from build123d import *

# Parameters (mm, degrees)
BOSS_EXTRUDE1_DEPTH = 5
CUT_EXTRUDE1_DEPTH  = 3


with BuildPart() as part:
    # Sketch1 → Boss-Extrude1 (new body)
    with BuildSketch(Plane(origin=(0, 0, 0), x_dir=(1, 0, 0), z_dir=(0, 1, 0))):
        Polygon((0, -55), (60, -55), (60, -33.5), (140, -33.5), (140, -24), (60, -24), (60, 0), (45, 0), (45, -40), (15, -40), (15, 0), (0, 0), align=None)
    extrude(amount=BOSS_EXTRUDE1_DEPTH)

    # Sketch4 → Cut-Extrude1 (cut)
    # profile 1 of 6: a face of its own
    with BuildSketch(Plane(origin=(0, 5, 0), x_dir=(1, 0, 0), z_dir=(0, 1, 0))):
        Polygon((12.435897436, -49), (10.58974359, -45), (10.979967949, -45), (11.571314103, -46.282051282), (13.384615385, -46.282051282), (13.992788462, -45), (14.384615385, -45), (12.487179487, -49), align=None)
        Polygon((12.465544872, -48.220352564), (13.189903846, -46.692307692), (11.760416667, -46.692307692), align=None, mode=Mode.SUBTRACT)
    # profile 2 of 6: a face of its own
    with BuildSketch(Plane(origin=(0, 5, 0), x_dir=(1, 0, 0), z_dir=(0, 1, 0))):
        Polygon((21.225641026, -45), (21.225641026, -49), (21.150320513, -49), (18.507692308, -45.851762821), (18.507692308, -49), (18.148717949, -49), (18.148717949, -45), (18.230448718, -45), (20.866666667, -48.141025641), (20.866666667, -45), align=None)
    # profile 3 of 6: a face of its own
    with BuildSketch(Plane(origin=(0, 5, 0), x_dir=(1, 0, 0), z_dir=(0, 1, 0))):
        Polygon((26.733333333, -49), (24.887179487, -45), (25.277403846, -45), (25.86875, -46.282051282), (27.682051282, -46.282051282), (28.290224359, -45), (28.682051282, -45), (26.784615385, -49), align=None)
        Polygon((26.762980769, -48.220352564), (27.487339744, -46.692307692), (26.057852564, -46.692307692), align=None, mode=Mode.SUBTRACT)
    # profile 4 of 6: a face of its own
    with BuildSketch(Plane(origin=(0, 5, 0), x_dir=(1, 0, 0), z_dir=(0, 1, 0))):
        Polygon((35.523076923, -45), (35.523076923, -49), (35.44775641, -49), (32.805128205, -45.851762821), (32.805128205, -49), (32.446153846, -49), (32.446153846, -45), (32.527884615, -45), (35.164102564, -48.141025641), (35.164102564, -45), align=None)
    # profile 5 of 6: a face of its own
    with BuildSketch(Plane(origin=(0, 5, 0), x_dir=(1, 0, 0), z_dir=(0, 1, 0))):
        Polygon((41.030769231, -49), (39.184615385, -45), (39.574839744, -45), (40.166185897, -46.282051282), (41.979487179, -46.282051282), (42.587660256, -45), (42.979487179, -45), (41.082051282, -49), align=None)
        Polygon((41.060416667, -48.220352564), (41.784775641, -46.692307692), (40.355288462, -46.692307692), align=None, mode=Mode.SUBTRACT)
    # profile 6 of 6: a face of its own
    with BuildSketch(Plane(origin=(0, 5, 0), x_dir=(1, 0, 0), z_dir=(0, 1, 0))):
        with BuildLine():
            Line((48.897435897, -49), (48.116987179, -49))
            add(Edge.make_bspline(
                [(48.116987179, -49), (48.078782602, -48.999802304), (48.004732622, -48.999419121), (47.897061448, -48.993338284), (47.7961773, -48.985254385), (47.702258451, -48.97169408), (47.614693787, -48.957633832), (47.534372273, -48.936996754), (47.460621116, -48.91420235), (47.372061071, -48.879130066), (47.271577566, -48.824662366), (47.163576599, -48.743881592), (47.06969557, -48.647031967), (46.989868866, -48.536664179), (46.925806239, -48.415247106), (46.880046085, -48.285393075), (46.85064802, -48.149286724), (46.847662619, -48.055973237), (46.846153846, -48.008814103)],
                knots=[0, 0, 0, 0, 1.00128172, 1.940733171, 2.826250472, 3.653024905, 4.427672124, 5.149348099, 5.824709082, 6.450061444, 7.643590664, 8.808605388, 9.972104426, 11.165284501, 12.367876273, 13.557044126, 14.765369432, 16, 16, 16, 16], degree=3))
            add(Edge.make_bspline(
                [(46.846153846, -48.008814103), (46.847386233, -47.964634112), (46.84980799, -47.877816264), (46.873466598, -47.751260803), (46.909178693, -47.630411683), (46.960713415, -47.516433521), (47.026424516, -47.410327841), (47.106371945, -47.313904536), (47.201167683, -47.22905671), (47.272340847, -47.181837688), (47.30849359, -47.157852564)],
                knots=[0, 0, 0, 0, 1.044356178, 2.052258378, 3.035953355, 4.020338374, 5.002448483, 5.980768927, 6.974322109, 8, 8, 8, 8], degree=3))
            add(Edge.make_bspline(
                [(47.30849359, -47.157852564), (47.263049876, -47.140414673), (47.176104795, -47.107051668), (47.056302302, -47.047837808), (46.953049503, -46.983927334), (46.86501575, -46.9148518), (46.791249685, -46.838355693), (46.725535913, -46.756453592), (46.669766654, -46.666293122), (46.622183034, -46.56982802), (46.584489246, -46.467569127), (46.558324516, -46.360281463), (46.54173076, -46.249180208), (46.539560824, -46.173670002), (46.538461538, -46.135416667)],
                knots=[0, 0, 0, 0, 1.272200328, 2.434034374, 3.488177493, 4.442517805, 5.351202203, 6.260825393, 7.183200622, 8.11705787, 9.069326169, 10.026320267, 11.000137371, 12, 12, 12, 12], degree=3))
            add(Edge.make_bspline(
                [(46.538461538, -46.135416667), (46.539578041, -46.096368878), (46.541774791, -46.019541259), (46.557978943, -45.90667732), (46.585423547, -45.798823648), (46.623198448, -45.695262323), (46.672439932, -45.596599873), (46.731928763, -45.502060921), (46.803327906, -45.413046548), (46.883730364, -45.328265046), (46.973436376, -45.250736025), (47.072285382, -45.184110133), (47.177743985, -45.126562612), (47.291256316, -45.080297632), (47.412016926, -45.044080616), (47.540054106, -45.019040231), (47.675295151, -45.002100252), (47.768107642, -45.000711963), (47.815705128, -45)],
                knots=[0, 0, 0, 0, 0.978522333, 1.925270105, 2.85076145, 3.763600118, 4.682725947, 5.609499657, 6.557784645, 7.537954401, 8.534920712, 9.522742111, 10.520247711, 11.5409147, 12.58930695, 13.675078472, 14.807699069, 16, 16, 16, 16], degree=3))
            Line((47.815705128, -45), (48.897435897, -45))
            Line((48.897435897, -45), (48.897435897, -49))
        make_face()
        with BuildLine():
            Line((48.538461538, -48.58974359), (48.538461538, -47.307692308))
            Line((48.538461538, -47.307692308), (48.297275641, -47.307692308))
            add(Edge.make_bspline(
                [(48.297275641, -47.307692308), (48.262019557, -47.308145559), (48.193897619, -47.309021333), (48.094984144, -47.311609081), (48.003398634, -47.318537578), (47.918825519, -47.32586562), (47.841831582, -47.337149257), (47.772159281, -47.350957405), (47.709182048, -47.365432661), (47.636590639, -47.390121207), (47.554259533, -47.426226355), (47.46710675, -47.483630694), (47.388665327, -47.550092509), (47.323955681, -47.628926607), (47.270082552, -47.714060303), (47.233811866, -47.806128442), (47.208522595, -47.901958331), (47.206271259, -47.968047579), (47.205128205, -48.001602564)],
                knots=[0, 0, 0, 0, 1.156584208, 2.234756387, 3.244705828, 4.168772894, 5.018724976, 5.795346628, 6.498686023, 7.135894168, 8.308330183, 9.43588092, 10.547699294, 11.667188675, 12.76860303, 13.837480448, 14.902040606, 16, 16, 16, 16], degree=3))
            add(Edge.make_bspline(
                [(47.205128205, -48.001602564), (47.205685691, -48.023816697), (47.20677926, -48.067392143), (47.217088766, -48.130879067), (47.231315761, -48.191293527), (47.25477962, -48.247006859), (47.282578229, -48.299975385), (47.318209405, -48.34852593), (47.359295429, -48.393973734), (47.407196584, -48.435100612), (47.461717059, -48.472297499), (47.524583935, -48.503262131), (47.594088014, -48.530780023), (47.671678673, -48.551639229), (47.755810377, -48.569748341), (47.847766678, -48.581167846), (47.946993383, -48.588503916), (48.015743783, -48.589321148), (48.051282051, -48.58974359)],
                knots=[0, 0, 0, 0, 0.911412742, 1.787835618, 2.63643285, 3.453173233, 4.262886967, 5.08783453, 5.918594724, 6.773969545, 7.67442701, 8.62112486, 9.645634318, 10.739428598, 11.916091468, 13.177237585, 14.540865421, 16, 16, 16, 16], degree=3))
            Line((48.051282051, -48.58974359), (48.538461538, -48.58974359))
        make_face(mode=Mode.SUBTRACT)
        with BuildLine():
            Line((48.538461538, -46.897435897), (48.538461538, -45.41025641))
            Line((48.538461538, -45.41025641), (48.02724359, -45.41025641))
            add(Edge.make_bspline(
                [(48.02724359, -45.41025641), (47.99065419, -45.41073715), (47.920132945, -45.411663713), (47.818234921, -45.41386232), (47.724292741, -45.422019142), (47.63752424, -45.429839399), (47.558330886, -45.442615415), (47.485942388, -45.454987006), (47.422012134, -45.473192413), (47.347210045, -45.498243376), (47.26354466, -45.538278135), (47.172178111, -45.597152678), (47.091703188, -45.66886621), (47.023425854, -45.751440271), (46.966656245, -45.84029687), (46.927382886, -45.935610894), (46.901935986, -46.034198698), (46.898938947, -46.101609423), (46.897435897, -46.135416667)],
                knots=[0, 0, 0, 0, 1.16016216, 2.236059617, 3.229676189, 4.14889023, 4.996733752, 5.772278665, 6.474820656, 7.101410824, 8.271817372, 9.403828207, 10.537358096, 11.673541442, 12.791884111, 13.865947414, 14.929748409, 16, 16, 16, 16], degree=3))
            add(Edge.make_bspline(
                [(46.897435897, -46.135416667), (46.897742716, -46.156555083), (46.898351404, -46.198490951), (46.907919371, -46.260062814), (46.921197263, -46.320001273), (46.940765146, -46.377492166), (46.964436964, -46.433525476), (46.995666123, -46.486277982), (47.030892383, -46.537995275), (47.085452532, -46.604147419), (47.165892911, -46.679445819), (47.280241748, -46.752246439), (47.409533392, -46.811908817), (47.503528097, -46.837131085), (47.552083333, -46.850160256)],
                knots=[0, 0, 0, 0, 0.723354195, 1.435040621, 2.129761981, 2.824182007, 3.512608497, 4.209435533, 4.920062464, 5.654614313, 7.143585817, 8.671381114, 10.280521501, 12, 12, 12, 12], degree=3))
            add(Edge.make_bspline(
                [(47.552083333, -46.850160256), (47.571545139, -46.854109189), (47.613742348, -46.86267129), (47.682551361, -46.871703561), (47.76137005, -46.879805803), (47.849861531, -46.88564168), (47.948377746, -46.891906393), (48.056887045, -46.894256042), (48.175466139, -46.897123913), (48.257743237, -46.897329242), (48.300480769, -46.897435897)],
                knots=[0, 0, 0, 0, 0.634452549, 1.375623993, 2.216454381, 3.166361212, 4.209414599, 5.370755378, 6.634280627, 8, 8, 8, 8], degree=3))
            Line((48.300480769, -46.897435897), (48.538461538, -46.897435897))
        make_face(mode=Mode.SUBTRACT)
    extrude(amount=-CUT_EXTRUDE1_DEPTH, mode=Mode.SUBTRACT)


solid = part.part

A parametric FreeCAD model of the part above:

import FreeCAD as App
import Part
import Sketcher
from FreeCAD import Vector


def add_polygon(sketch, points):
    """Adds a closed chain of lines whose ends are joined by coincident constraints."""
    first, n = sketch.GeometryCount, len(points)
    for a, b in zip(points, points[1:] + points[:1]):
        sketch.addGeometry(Part.LineSegment(App.Vector(*a, 0), App.Vector(*b, 0)), False)
    for i in range(n):
        sketch.addConstraint(Sketcher.Constraint("Coincident", first + i, 2, first + (i + 1) % n, 1))

doc = App.newDocument("Part")
params = doc.addObject("Spreadsheet::Sheet", "Params")
for row, (alias, value) in enumerate([
    ("sketch1_width", "60 mm"),
    ("sketch1_width2", "80 mm"),
    ("sketch1_width3", "15 mm"),
    ("sketch1_height", "24 mm"),
    ("sketch1_height2", "40 mm"),
    ("pad1_length", "5 mm"),
    ("pocket1_length", "3 mm"),
], start=1):
    params.set(f"A{row}", alias)
    params.set(f"B{row}", "=" + value)
    params.setAlias(f"B{row}", alias)

body = doc.addObject("PartDesign::Body", "Body")

# Sketch on XZ plane
sketch1 = body.newObject("Sketcher::SketchObject", "Sketch")
sketch1.AttachmentSupport = (doc.getObject("XZ_Plane"), [""])
sketch1.MapMode = "FlatFace"
add_polygon(sketch1, [(0, 55), (60, 55), (60, 34), (140, 34), (140, 24), (60, 24), (60, 0), (45, 0), (45, 40), (15, 40), (15, 0), (0, 0)])  # lines 0-11
sketch1.addConstraint([
    Sketcher.Constraint("Horizontal", 0),
    Sketcher.Constraint("Vertical", 1),
    Sketcher.Constraint("Horizontal", 2),
    Sketcher.Constraint("Vertical", 3),
    Sketcher.Constraint("Horizontal", 4),
    Sketcher.Constraint("Vertical", 5),
    Sketcher.Constraint("Horizontal", 6),
    Sketcher.Constraint("Vertical", 7),
    Sketcher.Constraint("Horizontal", 8),
    Sketcher.Constraint("Vertical", 9),
    Sketcher.Constraint("Horizontal", 10),
    Sketcher.Constraint("Vertical", 11),
    Sketcher.Constraint("Coincident", 10, 2, -1, 1),
    Sketcher.Constraint("PointOnObject", 5, 2, -1),
    Sketcher.Constraint("Vertical", 1, 2, 4, 2),
    Sketcher.Constraint("Equal", 6, 10),
    Sketcher.Constraint("DistanceX", 0, 1, 0, 2, 60.0),
    Sketcher.Constraint("DistanceX", 2, 1, 2, 2, 80.0),
    Sketcher.Constraint("DistanceX", 6, 2, 6, 1, 15.0),
    Sketcher.Constraint("DistanceY", 5, 2, 5, 1, 24.0),
    Sketcher.Constraint("DistanceY", 7, 1, 7, 2, 40.0),
    Sketcher.Constraint("DistanceY", 11, 1, 11, 2, 55.0),
    Sketcher.Constraint("DistanceY", 1, 2, 1, 1, 21.5),
])
sketch1.setExpression("Constraints[28]", "Params.sketch1_width")
sketch1.setExpression("Constraints[29]", "Params.sketch1_width2")
sketch1.setExpression("Constraints[30]", "Params.sketch1_width3")
sketch1.setExpression("Constraints[31]", "Params.sketch1_height")
sketch1.setExpression("Constraints[32]", "Params.sketch1_height2")
pad1 = body.newObject("PartDesign::Pad", "Pad")
pad1.Profile = sketch1
pad1.setExpression("Length", "Params.pad1_length")
pad1.Reversed = True

# Sketch on XZ plane
sketch2 = body.newObject("Sketcher::SketchObject", "Sketch001")
sketch2.AttachmentSupport = (doc.getObject("XZ_Plane"), [""])
sketch2.MapMode = "FlatFace"
sketch2.AttachmentOffset = App.Placement(Vector(0, 0, -5), App.Rotation())
add_polygon(sketch2, [(10.589744, 45), (12.435897, 49), (12.487179, 49), (14.384615, 45), (13.992788, 45), (13.384615, 46.282051), (11.571314, 46.282051), (10.979968, 45)])  # lines 0-7
add_polygon(sketch2, [(12.465545, 48.220353), (11.760417, 46.692308), (13.189904, 46.692308)])  # lines 8-10
add_polygon(sketch2, [(21.225641, 49), (21.225641, 45), (20.866667, 45), (20.866667, 48.141026), (18.230449, 45), (18.148718, 45), (18.148718, 49), (18.507692, 49), (18.507692, 45.851763), (21.150321, 49)])  # lines 11-20
add_polygon(sketch2, [(24.887179, 45), (26.733333, 49), (26.784615, 49), (28.682051, 45), (28.290224, 45), (27.682051, 46.282051), (25.86875, 46.282051), (25.277404, 45)])  # lines 21-28
add_polygon(sketch2, [(26.762981, 48.220353), (26.057853, 46.692308), (27.48734, 46.692308)])  # lines 29-31
add_polygon(sketch2, [(35.523077, 49), (35.523077, 45), (35.164103, 45), (35.164103, 48.141026), (32.527885, 45), (32.446154, 45), (32.446154, 49), (32.805128, 49), (32.805128, 45.851763), (35.447756, 49)])  # lines 32-41
add_polygon(sketch2, [(39.184615, 45), (41.030769, 49), (41.082051, 49), (42.979487, 45), (42.58766, 45), (41.979487, 46.282051), (40.166186, 46.282051), (39.57484, 45)])  # lines 42-49
add_polygon(sketch2, [(41.060417, 48.220353), (40.355288, 46.692308), (41.784776, 46.692308)])  # lines 50-52
sketch2.addGeometry(Part.LineSegment(Vector(48.116987, 49, 0), Vector(48.897436, 49, 0)), False)  # 53
sketch2.addGeometry(Part.LineSegment(Vector(48.897436, 49, 0), Vector(48.897436, 45, 0)), False)  # 54
sketch2.addGeometry(Part.LineSegment(Vector(48.897436, 45, 0), Vector(47.815705, 45, 0)), False)  # 55
sketch2.addGeometry(Part.BSplineCurve([Vector(46.538462, 46.135417, 0), Vector(46.539578, 46.096369, 0), Vector(46.541775, 46.019541, 0), Vector(46.557979, 45.906677, 0), Vector(46.585424, 45.798824, 0), Vector(46.623198, 45.695262, 0), Vector(46.67244, 45.5966, 0), Vector(46.731929, 45.502061, 0), Vector(46.803328, 45.413047, 0), Vector(46.88373, 45.328265, 0), Vector(46.973436, 45.250736, 0), Vector(47.072285, 45.18411, 0), Vector(47.177744, 45.126563, 0), Vector(47.291256, 45.080298, 0), Vector(47.412017, 45.044081, 0), Vector(47.540054, 45.01904, 0), Vector(47.675295, 45.0021, 0), Vector(47.768108, 45.000712, 0), Vector(47.815705, 45, 0)], [4, 1, 1, 1, 1, 1, 1, 1, 1, 1, 1, 1, 1, 1, 1, 1, 4], [0, 0.978522333, 1.925270105, 2.85076145, 3.763600118, 4.682725947, 5.609499657, 6.557784645, 7.537954401, 8.534920712, 9.522742111, 10.520247711, 11.5409147, 12.58930695, 13.675078472, 14.807699069, 16], False, 3, [1, 1, 1, 1, 1, 1, 1, 1, 1, 1, 1, 1, 1, 1, 1, 1, 1, 1, 1], False), False)  # 56
sketch2.addGeometry(Part.BSplineCurve([Vector(47.308494, 47.157853, 0), Vector(47.26305, 47.140415, 0), Vector(47.176105, 47.107052, 0), Vector(47.056302, 47.047838, 0), Vector(46.95305, 46.983927, 0), Vector(46.865016, 46.914852, 0), Vector(46.79125, 46.838356, 0), Vector(46.725536, 46.756454, 0), Vector(46.669767, 46.666293, 0), Vector(46.622183, 46.569828, 0), Vector(46.584489, 46.467569, 0), Vector(46.558325, 46.360281, 0), Vector(46.541731, 46.24918, 0), Vector(46.539561, 46.17367, 0), Vector(46.538462, 46.135417, 0)], [4, 1, 1, 1, 1, 1, 1, 1, 1, 1, 1, 1, 4], [0, 1.272200328, 2.434034374, 3.488177493, 4.442517805, 5.351202203, 6.260825393, 7.183200622, 8.11705787, 9.069326169, 10.026320267, 11.000137371, 12], False, 3, [1, 1, 1, 1, 1, 1, 1, 1, 1, 1, 1, 1, 1, 1, 1], False), False)  # 57
sketch2.addGeometry(Part.BSplineCurve([Vector(46.846154, 48.008814, 0), Vector(46.847386, 47.964634, 0), Vector(46.849808, 47.877816, 0), Vector(46.873467, 47.751261, 0), Vector(46.909179, 47.630412, 0), Vector(46.960713, 47.516434, 0), Vector(47.026425, 47.410328, 0), Vector(47.106372, 47.313905, 0), Vector(47.201168, 47.229057, 0), Vector(47.272341, 47.181838, 0), Vector(47.308494, 47.157853, 0)], [4, 1, 1, 1, 1, 1, 1, 1, 4], [0, 1.044356178, 2.052258378, 3.035953355, 4.020338374, 5.002448483, 5.980768927, 6.974322109, 8], False, 3, [1, 1, 1, 1, 1, 1, 1, 1, 1, 1, 1], False), False)  # 58
sketch2.addGeometry(Part.BSplineCurve([Vector(48.116987, 49, 0), Vector(48.078783, 48.999802, 0), Vector(48.004733, 48.999419, 0), Vector(47.897061, 48.993338, 0), Vector(47.796177, 48.985254, 0), Vector(47.702258, 48.971694, 0), Vector(47.614694, 48.957634, 0), Vector(47.534372, 48.936997, 0), Vector(47.460621, 48.914202, 0), Vector(47.372061, 48.87913, 0), Vector(47.271578, 48.824662, 0), Vector(47.163577, 48.743882, 0), Vector(47.069696, 48.647032, 0), Vector(46.989869, 48.536664, 0), Vector(46.925806, 48.415247, 0), Vector(46.880046, 48.285393, 0), Vector(46.850648, 48.149287, 0), Vector(46.847663, 48.055973, 0), Vector(46.846154, 48.008814, 0)], [4, 1, 1, 1, 1, 1, 1, 1, 1, 1, 1, 1, 1, 1, 1, 1, 4], [0, 1.00128172, 1.940733171, 2.826250472, 3.653024905, 4.427672124, 5.149348099, 5.824709082, 6.450061444, 7.643590664, 8.808605388, 9.972104426, 11.165284501, 12.367876273, 13.557044126, 14.765369432, 16], False, 3, [1, 1, 1, 1, 1, 1, 1, 1, 1, 1, 1, 1, 1, 1, 1, 1, 1, 1, 1], False), False)  # 59
sketch2.addGeometry(Part.LineSegment(Vector(48.538462, 48.589744, 0), Vector(48.051282, 48.589744, 0)), False)  # 60
sketch2.addGeometry(Part.BSplineCurve([Vector(47.205128, 48.001603, 0), Vector(47.205686, 48.023817, 0), Vector(47.206779, 48.067392, 0), Vector(47.217089, 48.130879, 0), Vector(47.231316, 48.191294, 0), Vector(47.25478, 48.247007, 0), Vector(47.282578, 48.299975, 0), Vector(47.318209, 48.348526, 0), Vector(47.359295, 48.393974, 0), Vector(47.407197, 48.435101, 0), Vector(47.461717, 48.472297, 0), Vector(47.524584, 48.503262, 0), Vector(47.594088, 48.53078, 0), Vector(47.671679, 48.551639, 0), Vector(47.75581, 48.569748, 0), Vector(47.847767, 48.581168, 0), Vector(47.946993, 48.588504, 0), Vector(48.015744, 48.589321, 0), Vector(48.051282, 48.589744, 0)], [4, 1, 1, 1, 1, 1, 1, 1, 1, 1, 1, 1, 1, 1, 1, 1, 4], [0, 0.911412742, 1.787835618, 2.63643285, 3.453173233, 4.262886967, 5.08783453, 5.918594724, 6.773969545, 7.67442701, 8.62112486, 9.645634318, 10.739428598, 11.916091468, 13.177237585, 14.540865421, 16], False, 3, [1, 1, 1, 1, 1, 1, 1, 1, 1, 1, 1, 1, 1, 1, 1, 1, 1, 1, 1], False), False)  # 61
sketch2.addGeometry(Part.BSplineCurve([Vector(48.297276, 47.307692, 0), Vector(48.26202, 47.308146, 0), Vector(48.193898, 47.309021, 0), Vector(48.094984, 47.311609, 0), Vector(48.003399, 47.318538, 0), Vector(47.918826, 47.325866, 0), Vector(47.841832, 47.337149, 0), Vector(47.772159, 47.350957, 0), Vector(47.709182, 47.365433, 0), Vector(47.636591, 47.390121, 0), Vector(47.55426, 47.426226, 0), Vector(47.467107, 47.483631, 0), Vector(47.388665, 47.550093, 0), Vector(47.323956, 47.628927, 0), Vector(47.270083, 47.71406, 0), Vector(47.233812, 47.806128, 0), Vector(47.208523, 47.901958, 0), Vector(47.206271, 47.968048, 0), Vector(47.205128, 48.001603, 0)], [4, 1, 1, 1, 1, 1, 1, 1, 1, 1, 1, 1, 1, 1, 1, 1, 4], [0, 1.156584208, 2.234756387, 3.244705828, 4.168772894, 5.018724976, 5.795346628, 6.498686023, 7.135894168, 8.308330183, 9.43588092, 10.547699294, 11.667188675, 12.76860303, 13.837480448, 14.902040606, 16], False, 3, [1, 1, 1, 1, 1, 1, 1, 1, 1, 1, 1, 1, 1, 1, 1, 1, 1, 1, 1], False), False)  # 62
sketch2.addGeometry(Part.LineSegment(Vector(48.297276, 47.307692, 0), Vector(48.538462, 47.307692, 0)), False)  # 63
sketch2.addGeometry(Part.LineSegment(Vector(48.538462, 47.307692, 0), Vector(48.538462, 48.589744, 0)), False)  # 64
sketch2.addGeometry(Part.LineSegment(Vector(48.538462, 46.897436, 0), Vector(48.300481, 46.897436, 0)), False)  # 65
sketch2.addGeometry(Part.BSplineCurve([Vector(47.552083, 46.85016, 0), Vector(47.571545, 46.854109, 0), Vector(47.613742, 46.862671, 0), Vector(47.682551, 46.871704, 0), Vector(47.76137, 46.879806, 0), Vector(47.849862, 46.885642, 0), Vector(47.948378, 46.891906, 0), Vector(48.056887, 46.894256, 0), Vector(48.175466, 46.897124, 0), Vector(48.257743, 46.897329, 0), Vector(48.300481, 46.897436, 0)], [4, 1, 1, 1, 1, 1, 1, 1, 4], [0, 0.634452549, 1.375623993, 2.216454381, 3.166361212, 4.209414599, 5.370755378, 6.634280627, 8], False, 3, [1, 1, 1, 1, 1, 1, 1, 1, 1, 1, 1], False), False)  # 66
sketch2.addGeometry(Part.BSplineCurve([Vector(46.897436, 46.135417, 0), Vector(46.897743, 46.156555, 0), Vector(46.898351, 46.198491, 0), Vector(46.907919, 46.260063, 0), Vector(46.921197, 46.320001, 0), Vector(46.940765, 46.377492, 0), Vector(46.964437, 46.433525, 0), Vector(46.995666, 46.486278, 0), Vector(47.030892, 46.537995, 0), Vector(47.085453, 46.604147, 0), Vector(47.165893, 46.679446, 0), Vector(47.280242, 46.752246, 0), Vector(47.409533, 46.811909, 0), Vector(47.503528, 46.837131, 0), Vector(47.552083, 46.85016, 0)], [4, 1, 1, 1, 1, 1, 1, 1, 1, 1, 1, 1, 4], [0, 0.723354195, 1.435040621, 2.129761981, 2.824182007, 3.512608497, 4.209435533, 4.920062464, 5.654614313, 7.143585817, 8.671381114, 10.280521501, 12], False, 3, [1, 1, 1, 1, 1, 1, 1, 1, 1, 1, 1, 1, 1, 1, 1], False), False)  # 67
sketch2.addGeometry(Part.BSplineCurve([Vector(48.027244, 45.410256, 0), Vector(47.990654, 45.410737, 0), Vector(47.920133, 45.411664, 0), Vector(47.818235, 45.413862, 0), Vector(47.724293, 45.422019, 0), Vector(47.637524, 45.429839, 0), Vector(47.558331, 45.442615, 0), Vector(47.485942, 45.454987, 0), Vector(47.422012, 45.473192, 0), Vector(47.34721, 45.498243, 0), Vector(47.263545, 45.538278, 0), Vector(47.172178, 45.597153, 0), Vector(47.091703, 45.668866, 0), Vector(47.023426, 45.75144, 0), Vector(46.966656, 45.840297, 0), Vector(46.927383, 45.935611, 0), Vector(46.901936, 46.034199, 0), Vector(46.898939, 46.101609, 0), Vector(46.897436, 46.135417, 0)], [4, 1, 1, 1, 1, 1, 1, 1, 1, 1, 1, 1, 1, 1, 1, 1, 4], [0, 1.16016216, 2.236059617, 3.229676189, 4.14889023, 4.996733752, 5.772278665, 6.474820656, 7.101410824, 8.271817372, 9.403828207, 10.537358096, 11.673541442, 12.791884111, 13.865947414, 14.929748409, 16], False, 3, [1, 1, 1, 1, 1, 1, 1, 1, 1, 1, 1, 1, 1, 1, 1, 1, 1, 1, 1], False), False)  # 68
sketch2.addGeometry(Part.LineSegment(Vector(48.027244, 45.410256, 0), Vector(48.538462, 45.410256, 0)), False)  # 69
sketch2.addGeometry(Part.LineSegment(Vector(48.538462, 45.410256, 0), Vector(48.538462, 46.897436, 0)), False)  # 70
sketch2.addConstraint([
    Sketcher.Constraint("Block", 56),
    Sketcher.Constraint("Block", 57),
    Sketcher.Constraint("Block", 58),
    Sketcher.Constraint("Block", 59),
    Sketcher.Constraint("Block", 61),
    Sketcher.Constraint("Block", 62),
    Sketcher.Constraint("Block", 66),
    Sketcher.Constraint("Block", 67),
    Sketcher.Constraint("Block", 68),
    Sketcher.Constraint("Coincident", 53, 2, 54, 1),
    Sketcher.Constraint("Coincident", 54, 2, 55, 1),
    Sketcher.Constraint("Coincident", 55, 2, 56, 2),
    Sketcher.Constraint("Coincident", 59, 1, 53, 1),
    Sketcher.Constraint("Coincident", 60, 2, 61, 2),
    Sketcher.Constraint("Coincident", 62, 1, 63, 1),
    Sketcher.Constraint("Coincident", 63, 2, 64, 1),
    Sketcher.Constraint("Coincident", 64, 2, 60, 1),
    Sketcher.Constraint("Coincident", 65, 2, 66, 2),
    Sketcher.Constraint("Coincident", 68, 1, 69, 1),
    Sketcher.Constraint("Coincident", 69, 2, 70, 1),
    Sketcher.Constraint("Coincident", 70, 2, 65, 1),
    Sketcher.Constraint("Horizontal", 1),
    Sketcher.Constraint("Horizontal", 3),
    Sketcher.Constraint("Horizontal", 5),
    Sketcher.Constraint("Horizontal", 7),
    Sketcher.Constraint("Horizontal", 9),
    Sketcher.Constraint("Vertical", 11),
    Sketcher.Constraint("Horizontal", 12),
    Sketcher.Constraint("Vertical", 13),
    Sketcher.Constraint("Horizontal", 15),
    Sketcher.Constraint("Vertical", 16),
    Sketcher.Constraint("Horizontal", 17),
    Sketcher.Constraint("Vertical", 18),
    Sketcher.Constraint("Horizontal", 20),
    Sketcher.Constraint("Horizontal", 22),
    Sketcher.Constraint("Horizontal", 24),
    Sketcher.Constraint("Horizontal", 26),
    Sketcher.Constraint("Horizontal", 28),
    Sketcher.Constraint("Horizontal", 30),
    Sketcher.Constraint("Vertical", 32),
    Sketcher.Constraint("Horizontal", 33),
    Sketcher.Constraint("Vertical", 34),
    Sketcher.Constraint("Horizontal", 36),
    Sketcher.Constraint("Vertical", 37),
    Sketcher.Constraint("Horizontal", 38),
    Sketcher.Constraint("Vertical", 39),
    Sketcher.Constraint("Horizontal", 41),
    Sketcher.Constraint("Horizontal", 43),
    Sketcher.Constraint("Horizontal", 45),
    Sketcher.Constraint("Horizontal", 47),
    Sketcher.Constraint("Horizontal", 49),
    Sketcher.Constraint("Horizontal", 51),
    Sketcher.Constraint("Horizontal", 53),
    Sketcher.Constraint("Vertical", 54),
    Sketcher.Constraint("Horizontal", 55),
    Sketcher.Constraint("Horizontal", 60),
    Sketcher.Constraint("Horizontal", 63),
    Sketcher.Constraint("Vertical", 64),
    Sketcher.Constraint("Horizontal", 65),
    Sketcher.Constraint("Horizontal", 69),
    Sketcher.Constraint("Vertical", 70),
    Sketcher.Constraint("Parallel", 0, 21),
    Sketcher.Constraint("Parallel", 2, 23),
    Sketcher.Constraint("Parallel", 4, 25),
    Sketcher.Constraint("Parallel", 6, 27),
    Sketcher.Constraint("Parallel", 8, 29),
    Sketcher.Constraint("Parallel", 10, 31),
    Sketcher.Constraint("Parallel", 14, 35),
    Sketcher.Constraint("Parallel", 19, 40),
    Sketcher.Constraint("Parallel", 21, 42),
    Sketcher.Constraint("Parallel", 23, 44),
    Sketcher.Constraint("Parallel", 25, 46),
    Sketcher.Constraint("Parallel", 27, 48),
    Sketcher.Constraint("Parallel", 29, 50),
    Sketcher.Constraint("Parallel", 31, 52),
    Sketcher.Constraint("Horizontal", 3, 2, 6, 2),
    Sketcher.Constraint("Horizontal", 7, 2, 11, 2),
    Sketcher.Constraint("Horizontal", 12, 2, 14, 2),
    Sketcher.Constraint("Horizontal", 1, 2, 16, 2),
    Sketcher.Constraint("Horizontal", 17, 2, 19, 2),
    Sketcher.Constraint("Horizontal", 20, 2, 21, 2),
    Sketcher.Constraint("Horizontal", 15, 2, 23, 2),
    Sketcher.Constraint("Horizontal", 5, 2, 25, 2),
    Sketcher.Constraint("Horizontal", 24, 2, 27, 2),
    Sketcher.Constraint("Horizontal", 9, 2, 29, 2),
    Sketcher.Constraint("Horizontal", 10, 2, 31, 2),
    Sketcher.Constraint("Horizontal", 28, 2, 32, 2),
    Sketcher.Constraint("Horizontal", 13, 2, 34, 2),
    Sketcher.Constraint("Horizontal", 33, 2, 35, 2),
    Sketcher.Constraint("Horizontal", 22, 2, 37, 2),
    Sketcher.Constraint("Horizontal", 18, 2, 39, 2),
    Sketcher.Constraint("Horizontal", 38, 2, 40, 2),
    Sketcher.Constraint("Horizontal", 41, 2, 42, 2),
    Sketcher.Constraint("Horizontal", 36, 2, 44, 2),
    Sketcher.Constraint("Horizontal", 26, 2, 46, 2),
    Sketcher.Constraint("Horizontal", 45, 2, 48, 2),
    Sketcher.Constraint("Horizontal", 30, 2, 50, 2),
    Sketcher.Constraint("Horizontal", 31, 2, 52, 2),
    Sketcher.Constraint("Horizontal", 43, 2, 53, 2),
    Sketcher.Constraint("Horizontal", 49, 2, 54, 2),
    Sketcher.Constraint("Vertical", 64, 2, 69, 2),
    Sketcher.Constraint("Equal", 12, 17),
    Sketcher.Constraint("Equal", 1, 22),
    Sketcher.Constraint("Equal", 3, 24),
    Sketcher.Constraint("Equal", 5, 26),
    Sketcher.Constraint("Equal", 17, 33),
    Sketcher.Constraint("Equal", 15, 36),
    Sketcher.Constraint("Equal", 33, 38),
    Sketcher.Constraint("Equal", 22, 43),
    Sketcher.Constraint("Equal", 24, 45),
    Sketcher.Constraint("Equal", 26, 47),
    Sketcher.Constraint("DistanceX", 5, 2, 5, 1, 1.813301),
    Sketcher.Constraint("DistanceX", 15, 2, 15, 1, 0.081731),
    Sketcher.Constraint("DistanceX", 20, 1, 20, 2, 0.075321),
    Sketcher.Constraint("DistanceX", 53, 1, 53, 2, 0.780449),
    Sketcher.Constraint("DistanceX", 60, 2, 60, 1, 0.487179),
    Sketcher.Constraint("Distance", 2, 4.427218),
    Sketcher.Constraint("Distance", 4, 1.418989),
    Sketcher.Constraint("Distance", 6, 1.411859),
    Sketcher.Constraint("Distance", 10, 1.69104),
    Sketcher.Constraint("Distance", 19, 4.110338),
    Sketcher.Constraint("DistanceX", 1, 1, 1, 2, 0.051282),
    Sketcher.Constraint("DistanceX", 3, 2, 3, 1, 0.391827),
    Sketcher.Constraint("DistanceX", 7, 2, 7, 1, 0.390224),
    Sketcher.Constraint("DistanceX", 9, 1, 9, 2, 1.429487),
    Sketcher.Constraint("DistanceX", 12, 2, 12, 1, 0.358974),
    Sketcher.Constraint("DistanceY", 13, 1, 13, 2, 3.141026),
    Sketcher.Constraint("DistanceY", 18, 2, 18, 1, 3.148237),
    Sketcher.Constraint("DistanceX", -1, 1, 1, 2, 12.487179),
    Sketcher.Constraint("DistanceY", -1, 1, 4, 2, 46.282051),
    Sketcher.Constraint("DistanceX", -1, 1, 11, 2, 21.225641),
    Sketcher.Constraint("DistanceX", -1, 1, 23, 2, 28.682051),
    Sketcher.Constraint("DistanceX", -1, 1, 30, 2, 27.48734),
    Sketcher.Constraint("DistanceX", -1, 1, 31, 2, 26.762981),
    Sketcher.Constraint("DistanceX", -1, 1, 38, 2, 32.805128),
    Sketcher.Constraint("DistanceX", -1, 1, 42, 2, 41.030769),
    Sketcher.Constraint("DistanceX", -1, 1, 50, 2, 40.355288),
    Sketcher.Constraint("DistanceX", -1, 1, 8, 2, 11.760417),
    Sketcher.Constraint("DistanceY", -1, 1, 8, 2, 46.692308),
])
pocket1 = body.newObject("PartDesign::Pocket", "Pocket")
pocket1.Profile = sketch2
pocket1.setExpression("Length", "Params.pocket1_length")
pocket1.Reversed = True

doc.recompute()
